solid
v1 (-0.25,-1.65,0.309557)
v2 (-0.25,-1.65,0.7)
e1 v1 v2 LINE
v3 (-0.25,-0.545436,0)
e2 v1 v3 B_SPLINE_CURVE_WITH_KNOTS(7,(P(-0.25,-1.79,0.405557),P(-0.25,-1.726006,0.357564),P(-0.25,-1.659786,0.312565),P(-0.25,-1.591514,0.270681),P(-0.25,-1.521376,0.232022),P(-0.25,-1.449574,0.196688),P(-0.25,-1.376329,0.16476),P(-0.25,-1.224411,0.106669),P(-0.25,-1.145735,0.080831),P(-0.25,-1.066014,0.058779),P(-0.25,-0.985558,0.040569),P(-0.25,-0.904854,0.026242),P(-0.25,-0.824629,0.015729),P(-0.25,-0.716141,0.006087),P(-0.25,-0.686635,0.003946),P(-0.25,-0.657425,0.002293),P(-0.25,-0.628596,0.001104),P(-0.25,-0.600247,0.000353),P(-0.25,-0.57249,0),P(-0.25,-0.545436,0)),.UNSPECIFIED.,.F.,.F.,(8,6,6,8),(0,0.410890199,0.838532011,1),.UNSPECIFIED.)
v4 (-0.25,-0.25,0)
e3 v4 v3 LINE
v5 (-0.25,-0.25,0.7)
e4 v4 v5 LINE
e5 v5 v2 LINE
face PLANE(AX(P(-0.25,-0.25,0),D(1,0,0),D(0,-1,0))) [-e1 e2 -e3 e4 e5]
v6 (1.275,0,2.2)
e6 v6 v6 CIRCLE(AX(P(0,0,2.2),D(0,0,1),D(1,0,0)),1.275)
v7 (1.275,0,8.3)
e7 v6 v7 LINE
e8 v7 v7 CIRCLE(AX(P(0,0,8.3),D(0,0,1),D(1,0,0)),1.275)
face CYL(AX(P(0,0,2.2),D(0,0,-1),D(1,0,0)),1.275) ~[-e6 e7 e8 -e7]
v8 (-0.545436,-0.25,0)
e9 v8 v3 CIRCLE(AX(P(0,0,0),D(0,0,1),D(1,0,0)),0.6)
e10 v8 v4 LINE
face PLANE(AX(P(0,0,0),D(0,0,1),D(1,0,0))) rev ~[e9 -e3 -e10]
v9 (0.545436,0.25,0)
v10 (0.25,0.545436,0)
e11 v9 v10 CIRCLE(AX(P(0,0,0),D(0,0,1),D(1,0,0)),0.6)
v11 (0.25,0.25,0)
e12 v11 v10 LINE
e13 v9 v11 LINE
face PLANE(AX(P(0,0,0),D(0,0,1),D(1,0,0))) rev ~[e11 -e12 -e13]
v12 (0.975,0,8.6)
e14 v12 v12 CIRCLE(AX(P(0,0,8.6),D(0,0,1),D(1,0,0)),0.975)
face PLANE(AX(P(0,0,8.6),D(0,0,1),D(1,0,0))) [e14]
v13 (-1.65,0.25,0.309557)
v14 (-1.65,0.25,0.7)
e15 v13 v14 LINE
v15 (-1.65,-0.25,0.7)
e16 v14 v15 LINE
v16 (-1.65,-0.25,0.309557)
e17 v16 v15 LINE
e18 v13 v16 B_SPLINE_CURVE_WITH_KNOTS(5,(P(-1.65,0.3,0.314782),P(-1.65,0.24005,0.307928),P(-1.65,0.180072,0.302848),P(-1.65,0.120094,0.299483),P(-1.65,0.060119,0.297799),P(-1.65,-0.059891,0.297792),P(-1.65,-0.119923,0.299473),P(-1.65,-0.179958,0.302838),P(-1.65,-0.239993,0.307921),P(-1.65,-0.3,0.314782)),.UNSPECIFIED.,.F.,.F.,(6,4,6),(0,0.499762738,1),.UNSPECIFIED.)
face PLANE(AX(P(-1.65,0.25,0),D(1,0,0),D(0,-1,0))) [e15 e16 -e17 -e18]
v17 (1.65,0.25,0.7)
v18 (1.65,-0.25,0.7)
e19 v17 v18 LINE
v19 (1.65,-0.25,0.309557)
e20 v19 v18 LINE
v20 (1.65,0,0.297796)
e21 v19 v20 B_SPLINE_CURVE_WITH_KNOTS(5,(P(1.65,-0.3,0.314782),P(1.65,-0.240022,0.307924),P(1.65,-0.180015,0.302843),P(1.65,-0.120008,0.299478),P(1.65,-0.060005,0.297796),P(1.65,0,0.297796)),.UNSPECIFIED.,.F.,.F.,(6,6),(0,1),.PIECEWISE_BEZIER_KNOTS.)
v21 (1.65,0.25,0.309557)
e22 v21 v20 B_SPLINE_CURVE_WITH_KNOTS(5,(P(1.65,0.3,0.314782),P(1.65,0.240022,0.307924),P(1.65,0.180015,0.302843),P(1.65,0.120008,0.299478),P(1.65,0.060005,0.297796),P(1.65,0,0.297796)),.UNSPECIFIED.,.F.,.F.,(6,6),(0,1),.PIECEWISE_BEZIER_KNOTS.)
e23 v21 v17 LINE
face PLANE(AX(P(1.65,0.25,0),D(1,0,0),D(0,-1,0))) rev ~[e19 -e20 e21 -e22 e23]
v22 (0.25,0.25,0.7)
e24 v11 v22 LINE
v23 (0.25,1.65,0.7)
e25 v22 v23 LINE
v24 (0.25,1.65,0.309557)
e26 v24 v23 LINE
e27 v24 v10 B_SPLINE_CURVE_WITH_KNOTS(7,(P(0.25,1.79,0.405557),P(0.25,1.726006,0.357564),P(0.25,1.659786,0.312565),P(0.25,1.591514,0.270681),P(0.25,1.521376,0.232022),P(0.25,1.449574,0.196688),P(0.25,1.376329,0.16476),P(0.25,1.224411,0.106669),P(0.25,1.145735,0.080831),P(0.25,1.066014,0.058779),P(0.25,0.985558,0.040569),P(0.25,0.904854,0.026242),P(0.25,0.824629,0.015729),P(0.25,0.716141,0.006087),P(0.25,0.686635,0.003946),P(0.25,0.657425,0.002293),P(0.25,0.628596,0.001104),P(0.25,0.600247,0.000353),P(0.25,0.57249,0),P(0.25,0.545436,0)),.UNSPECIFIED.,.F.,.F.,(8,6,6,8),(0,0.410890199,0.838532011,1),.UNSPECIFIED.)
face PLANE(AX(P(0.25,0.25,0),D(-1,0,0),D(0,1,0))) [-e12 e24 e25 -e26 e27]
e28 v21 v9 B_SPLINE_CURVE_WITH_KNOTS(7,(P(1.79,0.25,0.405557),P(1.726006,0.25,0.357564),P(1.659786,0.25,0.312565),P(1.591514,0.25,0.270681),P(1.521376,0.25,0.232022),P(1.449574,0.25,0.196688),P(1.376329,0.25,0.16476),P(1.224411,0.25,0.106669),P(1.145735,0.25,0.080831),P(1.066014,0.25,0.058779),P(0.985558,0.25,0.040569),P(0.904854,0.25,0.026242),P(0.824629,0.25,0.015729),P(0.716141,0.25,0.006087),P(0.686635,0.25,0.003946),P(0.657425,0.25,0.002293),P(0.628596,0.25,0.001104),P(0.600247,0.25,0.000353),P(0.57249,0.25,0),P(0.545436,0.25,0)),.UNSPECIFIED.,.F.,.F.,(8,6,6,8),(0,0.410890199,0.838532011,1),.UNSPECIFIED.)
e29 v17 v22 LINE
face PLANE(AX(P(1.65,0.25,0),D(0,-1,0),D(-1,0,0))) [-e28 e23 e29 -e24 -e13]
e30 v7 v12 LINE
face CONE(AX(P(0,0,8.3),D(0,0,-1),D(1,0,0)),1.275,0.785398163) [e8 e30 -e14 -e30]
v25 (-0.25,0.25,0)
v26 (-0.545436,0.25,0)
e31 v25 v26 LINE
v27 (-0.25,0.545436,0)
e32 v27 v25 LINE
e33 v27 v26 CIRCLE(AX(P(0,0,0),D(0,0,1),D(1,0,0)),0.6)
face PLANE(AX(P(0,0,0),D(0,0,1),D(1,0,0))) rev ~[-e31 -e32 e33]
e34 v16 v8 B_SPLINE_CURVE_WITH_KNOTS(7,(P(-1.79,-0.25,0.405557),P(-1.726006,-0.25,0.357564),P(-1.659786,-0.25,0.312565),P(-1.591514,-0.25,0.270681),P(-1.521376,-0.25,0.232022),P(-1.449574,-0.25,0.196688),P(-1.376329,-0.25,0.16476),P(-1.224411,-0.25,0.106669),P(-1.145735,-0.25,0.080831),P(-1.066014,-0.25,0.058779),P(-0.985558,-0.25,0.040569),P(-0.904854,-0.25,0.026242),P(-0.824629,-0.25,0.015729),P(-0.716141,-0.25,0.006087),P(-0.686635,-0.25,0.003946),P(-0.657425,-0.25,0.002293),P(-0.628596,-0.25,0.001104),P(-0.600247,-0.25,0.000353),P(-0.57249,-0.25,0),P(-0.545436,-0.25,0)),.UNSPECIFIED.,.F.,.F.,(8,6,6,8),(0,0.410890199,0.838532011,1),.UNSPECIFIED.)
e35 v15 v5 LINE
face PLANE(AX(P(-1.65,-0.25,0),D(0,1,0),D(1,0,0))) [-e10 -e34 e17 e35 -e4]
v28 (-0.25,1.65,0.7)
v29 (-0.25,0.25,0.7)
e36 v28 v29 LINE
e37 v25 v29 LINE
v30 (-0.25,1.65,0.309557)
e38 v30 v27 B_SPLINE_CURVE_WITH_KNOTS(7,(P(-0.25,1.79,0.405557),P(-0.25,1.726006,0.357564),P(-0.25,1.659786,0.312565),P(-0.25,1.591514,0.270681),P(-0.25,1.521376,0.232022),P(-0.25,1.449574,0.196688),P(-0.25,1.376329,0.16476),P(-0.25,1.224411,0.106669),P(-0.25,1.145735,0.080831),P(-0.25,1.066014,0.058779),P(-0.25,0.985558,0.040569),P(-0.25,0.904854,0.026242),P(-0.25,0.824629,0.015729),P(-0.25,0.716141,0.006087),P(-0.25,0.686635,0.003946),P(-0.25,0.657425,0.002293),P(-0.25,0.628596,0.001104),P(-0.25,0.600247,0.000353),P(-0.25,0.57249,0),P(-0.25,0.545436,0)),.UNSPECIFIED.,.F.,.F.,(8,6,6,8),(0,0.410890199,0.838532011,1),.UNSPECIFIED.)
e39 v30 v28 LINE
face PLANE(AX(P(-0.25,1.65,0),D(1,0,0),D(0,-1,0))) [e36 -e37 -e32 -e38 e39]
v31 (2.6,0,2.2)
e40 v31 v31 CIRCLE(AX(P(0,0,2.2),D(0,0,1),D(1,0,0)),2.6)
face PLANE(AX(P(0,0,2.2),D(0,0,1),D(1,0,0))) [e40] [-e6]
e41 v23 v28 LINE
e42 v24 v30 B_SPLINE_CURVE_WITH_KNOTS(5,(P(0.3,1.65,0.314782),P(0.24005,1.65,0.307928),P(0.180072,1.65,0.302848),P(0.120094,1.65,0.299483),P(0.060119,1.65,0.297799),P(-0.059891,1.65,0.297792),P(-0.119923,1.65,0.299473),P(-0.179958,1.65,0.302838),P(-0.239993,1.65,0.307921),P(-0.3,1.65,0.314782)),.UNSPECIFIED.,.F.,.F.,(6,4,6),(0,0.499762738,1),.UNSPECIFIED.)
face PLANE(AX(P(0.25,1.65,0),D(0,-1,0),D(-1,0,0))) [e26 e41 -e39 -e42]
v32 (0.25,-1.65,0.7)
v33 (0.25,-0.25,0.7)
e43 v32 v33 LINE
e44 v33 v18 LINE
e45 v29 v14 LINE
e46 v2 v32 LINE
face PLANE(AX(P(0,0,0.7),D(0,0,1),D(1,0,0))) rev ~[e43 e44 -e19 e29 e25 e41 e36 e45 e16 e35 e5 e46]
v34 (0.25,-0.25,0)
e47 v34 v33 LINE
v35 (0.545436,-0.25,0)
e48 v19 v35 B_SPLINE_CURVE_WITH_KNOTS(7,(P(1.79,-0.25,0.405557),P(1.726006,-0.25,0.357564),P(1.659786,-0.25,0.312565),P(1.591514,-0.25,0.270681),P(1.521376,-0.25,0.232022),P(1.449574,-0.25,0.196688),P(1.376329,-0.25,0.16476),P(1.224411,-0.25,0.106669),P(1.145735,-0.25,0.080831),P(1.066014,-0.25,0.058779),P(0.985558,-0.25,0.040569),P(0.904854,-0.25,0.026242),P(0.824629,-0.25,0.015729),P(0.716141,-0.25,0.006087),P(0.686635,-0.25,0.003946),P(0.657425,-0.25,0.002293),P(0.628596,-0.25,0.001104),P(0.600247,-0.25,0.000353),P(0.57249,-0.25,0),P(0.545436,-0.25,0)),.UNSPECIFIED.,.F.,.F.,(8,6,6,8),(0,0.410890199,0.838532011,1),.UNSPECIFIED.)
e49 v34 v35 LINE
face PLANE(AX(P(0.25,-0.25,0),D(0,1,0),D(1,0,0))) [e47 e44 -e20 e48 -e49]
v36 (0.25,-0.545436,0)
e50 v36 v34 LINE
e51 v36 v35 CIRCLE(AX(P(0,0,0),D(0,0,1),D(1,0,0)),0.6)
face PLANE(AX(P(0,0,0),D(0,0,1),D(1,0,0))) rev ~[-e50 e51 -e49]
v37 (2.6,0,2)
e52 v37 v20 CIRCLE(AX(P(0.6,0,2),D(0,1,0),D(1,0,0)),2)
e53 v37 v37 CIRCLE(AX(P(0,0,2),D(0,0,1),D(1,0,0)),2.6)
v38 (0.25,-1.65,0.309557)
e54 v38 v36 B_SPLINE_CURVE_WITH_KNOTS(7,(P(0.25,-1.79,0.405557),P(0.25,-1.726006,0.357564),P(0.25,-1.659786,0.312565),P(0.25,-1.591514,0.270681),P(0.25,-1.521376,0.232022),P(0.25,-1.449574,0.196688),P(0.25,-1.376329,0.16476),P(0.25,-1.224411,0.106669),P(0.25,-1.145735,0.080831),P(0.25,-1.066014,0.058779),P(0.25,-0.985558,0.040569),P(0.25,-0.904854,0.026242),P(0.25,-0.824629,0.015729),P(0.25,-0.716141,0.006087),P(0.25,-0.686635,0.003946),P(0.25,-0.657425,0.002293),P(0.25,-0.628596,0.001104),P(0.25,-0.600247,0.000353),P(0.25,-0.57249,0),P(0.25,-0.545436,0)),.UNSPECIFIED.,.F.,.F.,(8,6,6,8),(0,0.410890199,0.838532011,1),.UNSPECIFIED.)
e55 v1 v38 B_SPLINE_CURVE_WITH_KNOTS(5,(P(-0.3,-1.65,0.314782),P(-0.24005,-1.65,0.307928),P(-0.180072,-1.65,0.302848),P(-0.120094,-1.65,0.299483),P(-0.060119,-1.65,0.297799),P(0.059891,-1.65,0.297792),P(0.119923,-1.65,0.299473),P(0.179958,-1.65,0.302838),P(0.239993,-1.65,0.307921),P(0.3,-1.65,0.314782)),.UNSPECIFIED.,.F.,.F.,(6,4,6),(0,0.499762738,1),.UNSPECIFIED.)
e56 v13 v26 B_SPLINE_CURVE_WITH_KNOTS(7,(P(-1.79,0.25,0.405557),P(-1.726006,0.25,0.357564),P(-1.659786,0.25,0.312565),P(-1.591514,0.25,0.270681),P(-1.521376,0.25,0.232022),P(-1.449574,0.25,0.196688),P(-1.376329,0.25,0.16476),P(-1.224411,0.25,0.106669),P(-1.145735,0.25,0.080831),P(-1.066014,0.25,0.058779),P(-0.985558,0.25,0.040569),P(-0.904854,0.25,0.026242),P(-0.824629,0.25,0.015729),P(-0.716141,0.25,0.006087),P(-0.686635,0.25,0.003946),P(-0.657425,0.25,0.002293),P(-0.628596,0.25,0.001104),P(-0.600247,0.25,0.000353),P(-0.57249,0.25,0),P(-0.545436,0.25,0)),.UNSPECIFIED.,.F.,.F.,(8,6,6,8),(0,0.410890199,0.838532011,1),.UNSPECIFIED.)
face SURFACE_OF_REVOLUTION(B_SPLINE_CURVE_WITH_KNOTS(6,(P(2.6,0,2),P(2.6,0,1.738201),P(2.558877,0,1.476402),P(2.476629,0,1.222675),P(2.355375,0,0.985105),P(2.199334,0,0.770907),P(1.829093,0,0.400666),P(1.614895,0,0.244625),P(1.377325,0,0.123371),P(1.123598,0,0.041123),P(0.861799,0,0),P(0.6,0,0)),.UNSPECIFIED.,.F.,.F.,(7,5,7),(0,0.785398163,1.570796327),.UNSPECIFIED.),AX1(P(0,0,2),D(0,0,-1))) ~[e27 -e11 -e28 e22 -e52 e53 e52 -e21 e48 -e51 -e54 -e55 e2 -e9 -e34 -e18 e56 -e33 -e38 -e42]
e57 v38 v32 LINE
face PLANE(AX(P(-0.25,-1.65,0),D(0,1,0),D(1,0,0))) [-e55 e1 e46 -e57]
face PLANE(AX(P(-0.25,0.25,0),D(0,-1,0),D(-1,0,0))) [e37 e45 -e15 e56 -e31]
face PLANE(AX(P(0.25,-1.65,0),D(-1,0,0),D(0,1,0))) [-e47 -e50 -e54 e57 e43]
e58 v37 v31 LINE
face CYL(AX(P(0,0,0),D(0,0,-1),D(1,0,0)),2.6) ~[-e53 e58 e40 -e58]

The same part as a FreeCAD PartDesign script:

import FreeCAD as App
import Part
import Sketcher
from FreeCAD import Vector
Q = App.Units.Quantity


def edges_at(feature, points):
    """Names of the edges that pass closest to the given points."""
    edges = feature.Shape.Edges
    near = lambda p: min(range(len(edges)), key=lambda i: edges[i].distToShape(Part.Vertex(*p))[0])
    return sorted({f"Edge{near(p) + 1}" for p in points})

doc = App.newDocument("Part")
body = doc.addObject("PartDesign::Body", "Body")

# Sketch on XY plane
sketch1 = body.newObject("Sketcher::SketchObject", "Sketch")
sketch1.AttachmentSupport = (doc.getObject("XY_Plane"), [""])
sketch1.MapMode = "FlatFace"
sketch1.addGeometry(Part.Circle(Vector(0, 0, 0), Vector(0, 0, 1), 2.6), False)
sketch1.addConstraint(Sketcher.Constraint("Coincident", 0, 3, -1, 1))
sketch1.addConstraint(Sketcher.Constraint("Diameter", 0, Q("5.2 mm")))
pad1 = body.newObject("PartDesign::Pad", "Pad")
pad1.Profile = sketch1
pad1.Length = 2.2

# Sketch on XY plane
sketch2 = body.newObject("Sketcher::SketchObject", "Sketch001")
sketch2.AttachmentSupport = (doc.getObject("XY_Plane"), [""])
sketch2.MapMode = "FlatFace"
sketch2.AttachmentOffset = App.Placement(Vector(0, 0, 2.2), App.Rotation())
sketch2.addGeometry(Part.Circle(Vector(0, 0, 0), Vector(0, 0, 1), 1.3), False)
sketch2.addConstraint(Sketcher.Constraint("Coincident", 0, 3, -1, 1))
sketch2.addConstraint(Sketcher.Constraint("Diameter", 0, Q("2.55 mm")))
pad2 = body.newObject("PartDesign::Pad", "Pad001")
pad2.Profile = sketch2
pad2.Length = 6.4
doc.recompute()

fillet = body.newObject("PartDesign::Fillet", "Fillet")
fillet.Base = (pad2, edges_at(pad2, [(-2.6, 0, 0)]))
fillet.Radius = 2

# Sketch on XY plane
sketch3 = body.newObject("Sketcher::SketchObject", "Sketch002")
sketch3.AttachmentSupport = (doc.getObject("XY_Plane"), [""])
sketch3.MapMode = "FlatFace"
sketch3.addGeometry(Part.LineSegment(Vector(1.6, 0.2, 0), Vector(1.6, -0.2, 0)), False)
sketch3.addGeometry(Part.LineSegment(Vector(1.6, -0.2, 0), Vector(0.2, -0.2, 0)), False)
sketch3.addGeometry(Part.LineSegment(Vector(0.2, -0.2, 0), Vector(0.2, -1.6, 0)), False)
sketch3.addGeometry(Part.LineSegment(Vector(0.2, -1.6, 0), Vector(-0.2, -1.6, 0)), False)
sketch3.addGeometry(Part.LineSegment(Vector(-0.2, -1.6, 0), Vector(-0.2, -0.2, 0)), False)
sketch3.addGeometry(Part.LineSegment(Vector(-0.2, -0.2, 0), Vector(-1.6, -0.2, 0)), False)
sketch3.addGeometry(Part.LineSegment(Vector(-1.6, -0.2, 0), Vector(-1.6, 0.2, 0)), False)
sketch3.addGeometry(Part.LineSegment(Vector(-1.6, 0.2, 0), Vector(-0.2, 0.2, 0)), False)
sketch3.addGeometry(Part.LineSegment(Vector(-0.2, 0.2, 0), Vector(-0.2, 1.6, 0)), False)
sketch3.addGeometry(Part.LineSegment(Vector(-0.2, 1.6, 0), Vector(0.2, 1.6, 0)), False)
sketch3.addGeometry(Part.LineSegment(Vector(0.2, 1.6, 0), Vector(0.2, 0.2, 0)), False)
sketch3.addGeometry(Part.LineSegment(Vector(0.2, 0.2, 0), Vector(1.6, 0.2, 0)), False)
sketch3.addConstraint(Sketcher.Constraint("Coincident", 0, 2, 1, 1))
sketch3.addConstraint(Sketcher.Constraint("Coincident", 1, 2, 2, 1))
sketch3.addConstraint(Sketcher.Constraint("Coincident", 2, 2, 3, 1))
sketch3.addConstraint(Sketcher.Constraint("Coincident", 3, 2, 4, 1))
sketch3.addConstraint(Sketcher.Constraint("Coincident", 4, 2, 5, 1))
sketch3.addConstraint(Sketcher.Constraint("Coincident", 5, 2, 6, 1))
sketch3.addConstraint(Sketcher.Constraint("Coincident", 6, 2, 7, 1))
sketch3.addConstraint(Sketcher.Constraint("Coincident", 7, 2, 8, 1))
sketch3.addConstraint(Sketcher.Constraint("Coincident", 8, 2, 9, 1))
sketch3.addConstraint(Sketcher.Constraint("Coincident", 9, 2, 10, 1))
sketch3.addConstraint(Sketcher.Constraint("Coincident", 10, 2, 11, 1))
sketch3.addConstraint(Sketcher.Constraint("Coincident", 11, 2, 0, 1))
sketch3.addConstraint(Sketcher.Constraint("Vertical", 0))
sketch3.addConstraint(Sketcher.Constraint("Horizontal", 1))
sketch3.addConstraint(Sketcher.Constraint("Vertical", 2))
sketch3.addConstraint(Sketcher.Constraint("Horizontal", 3))
sketch3.addConstraint(Sketcher.Constraint("Vertical", 4))
sketch3.addConstraint(Sketcher.Constraint("Horizontal", 5))
sketch3.addConstraint(Sketcher.Constraint("Vertical", 6))
sketch3.addConstraint(Sketcher.Constraint("Horizontal", 7))
sketch3.addConstraint(Sketcher.Constraint("Vertical", 8))
sketch3.addConstraint(Sketcher.Constraint("Horizontal", 9))
sketch3.addConstraint(Sketcher.Constraint("Vertical", 10))
sketch3.addConstraint(Sketcher.Constraint("Horizontal", 11))
sketch3.addConstraint(Sketcher.Constraint("Symmetric", 0, 2, 6, 2, -1, 1))
sketch3.addConstraint(Sketcher.Constraint("Symmetric", 2, 2, 8, 2, -1, 1))
sketch3.addConstraint(Sketcher.Constraint("Symmetric", 4, 2, 10, 2, -1, 1))
sketch3.addConstraint(Sketcher.Constraint("Symmetric", 1, 2, 4, 2, -2))
sketch3.addConstraint(Sketcher.Constraint("Equal", 9, 0))
sketch3.addConstraint(Sketcher.Constraint("Equal", 11, 2))
sketch3.addConstraint(Sketcher.Constraint("DistanceX", 1, 2, 1, 1, Q("1.4 mm")))
sketch3.addConstraint(Sketcher.Constraint("DistanceX", 3, 2, 3, 1, Q("0.5 mm")))
pocket1 = body.newObject("PartDesign::Pocket", "Pocket")
pocket1.Profile = sketch3
pocket1.Length = 0.7
pocket1.Reversed = True
doc.recompute()

chamfer = body.newObject("PartDesign::Chamfer", "Chamfer")
chamfer.Base = (pocket1, edges_at(pocket1, [(-1.275, 0, 8.6)]))
chamfer.Size = 0.3

doc.recompute()
